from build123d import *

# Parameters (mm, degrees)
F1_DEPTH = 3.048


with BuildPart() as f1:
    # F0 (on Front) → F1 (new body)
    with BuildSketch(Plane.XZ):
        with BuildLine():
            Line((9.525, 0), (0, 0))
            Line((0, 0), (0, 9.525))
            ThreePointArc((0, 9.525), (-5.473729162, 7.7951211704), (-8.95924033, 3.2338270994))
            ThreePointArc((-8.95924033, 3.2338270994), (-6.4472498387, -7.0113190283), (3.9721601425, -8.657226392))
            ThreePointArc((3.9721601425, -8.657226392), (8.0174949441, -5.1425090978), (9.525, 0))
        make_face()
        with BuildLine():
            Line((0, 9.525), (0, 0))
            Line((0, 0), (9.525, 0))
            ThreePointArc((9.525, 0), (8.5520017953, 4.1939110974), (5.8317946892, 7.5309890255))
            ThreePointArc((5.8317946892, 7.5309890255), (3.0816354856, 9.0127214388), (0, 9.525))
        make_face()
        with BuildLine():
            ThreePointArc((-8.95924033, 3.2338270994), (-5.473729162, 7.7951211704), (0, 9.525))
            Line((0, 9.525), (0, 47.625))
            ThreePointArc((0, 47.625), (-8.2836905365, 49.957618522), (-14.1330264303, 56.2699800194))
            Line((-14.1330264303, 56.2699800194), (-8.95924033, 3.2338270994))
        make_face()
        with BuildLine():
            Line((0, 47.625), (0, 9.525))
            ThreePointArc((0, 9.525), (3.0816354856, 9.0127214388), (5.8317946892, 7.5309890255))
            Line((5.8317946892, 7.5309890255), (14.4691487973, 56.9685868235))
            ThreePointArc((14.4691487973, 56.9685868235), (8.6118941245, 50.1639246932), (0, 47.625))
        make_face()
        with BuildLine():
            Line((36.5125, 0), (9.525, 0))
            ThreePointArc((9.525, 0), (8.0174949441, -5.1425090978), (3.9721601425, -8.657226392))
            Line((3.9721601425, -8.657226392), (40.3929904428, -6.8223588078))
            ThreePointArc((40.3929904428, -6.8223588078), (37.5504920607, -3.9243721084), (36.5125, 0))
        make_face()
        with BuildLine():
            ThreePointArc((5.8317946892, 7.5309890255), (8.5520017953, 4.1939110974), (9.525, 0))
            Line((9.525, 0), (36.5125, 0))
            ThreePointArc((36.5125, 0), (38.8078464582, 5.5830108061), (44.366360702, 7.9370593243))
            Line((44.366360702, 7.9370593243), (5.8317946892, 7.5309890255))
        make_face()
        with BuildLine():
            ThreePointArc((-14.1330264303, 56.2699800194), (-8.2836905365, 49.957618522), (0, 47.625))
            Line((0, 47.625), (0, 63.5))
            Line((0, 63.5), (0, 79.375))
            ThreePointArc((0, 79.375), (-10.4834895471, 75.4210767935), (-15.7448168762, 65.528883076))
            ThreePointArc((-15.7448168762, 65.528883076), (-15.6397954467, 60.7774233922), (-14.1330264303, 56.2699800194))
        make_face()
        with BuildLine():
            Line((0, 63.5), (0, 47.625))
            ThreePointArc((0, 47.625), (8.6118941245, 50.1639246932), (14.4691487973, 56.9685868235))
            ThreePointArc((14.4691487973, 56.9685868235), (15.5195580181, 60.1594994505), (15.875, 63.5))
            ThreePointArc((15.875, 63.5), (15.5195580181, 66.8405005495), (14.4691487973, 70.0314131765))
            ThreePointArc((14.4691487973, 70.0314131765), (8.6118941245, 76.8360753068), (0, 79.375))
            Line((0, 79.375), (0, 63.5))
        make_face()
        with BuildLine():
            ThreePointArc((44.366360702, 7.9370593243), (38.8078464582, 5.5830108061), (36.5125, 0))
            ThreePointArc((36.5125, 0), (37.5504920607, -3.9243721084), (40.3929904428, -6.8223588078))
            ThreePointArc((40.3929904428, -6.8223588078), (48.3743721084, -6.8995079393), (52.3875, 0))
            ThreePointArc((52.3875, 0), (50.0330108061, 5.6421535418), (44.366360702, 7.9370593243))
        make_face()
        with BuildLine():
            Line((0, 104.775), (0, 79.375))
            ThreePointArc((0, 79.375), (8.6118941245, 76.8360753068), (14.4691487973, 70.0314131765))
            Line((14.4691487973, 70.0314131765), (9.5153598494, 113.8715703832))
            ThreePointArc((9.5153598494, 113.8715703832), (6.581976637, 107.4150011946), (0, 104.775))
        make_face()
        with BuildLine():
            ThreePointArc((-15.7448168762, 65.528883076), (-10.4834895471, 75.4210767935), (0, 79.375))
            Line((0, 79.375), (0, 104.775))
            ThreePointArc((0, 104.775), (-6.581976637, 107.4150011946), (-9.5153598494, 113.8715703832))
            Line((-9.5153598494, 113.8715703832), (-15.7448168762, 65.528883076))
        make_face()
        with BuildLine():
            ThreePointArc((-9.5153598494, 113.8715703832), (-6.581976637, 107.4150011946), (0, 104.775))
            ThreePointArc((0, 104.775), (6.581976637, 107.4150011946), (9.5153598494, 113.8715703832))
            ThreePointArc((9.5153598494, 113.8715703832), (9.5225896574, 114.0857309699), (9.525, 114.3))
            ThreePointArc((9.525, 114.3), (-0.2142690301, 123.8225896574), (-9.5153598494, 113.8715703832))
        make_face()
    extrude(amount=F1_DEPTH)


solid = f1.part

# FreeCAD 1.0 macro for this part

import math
import FreeCAD as App
import Part
import Sketcher
Q = App.Units.Quantity

doc = App.newDocument("Part")
body = doc.addObject("PartDesign::Body", "Body")

# Sketch on XZ plane
sketch1 = body.newObject("Sketcher::SketchObject", "Sketch")
sketch1.AttachmentSupport = (doc.getObject("XZ_Plane"), [""])
sketch1.MapMode = "FlatFace"
sketch1.addGeometry(Part.ArcOfCircle(Part.Circle(App.Vector(0, 0, 0), App.Vector(0, 0, 1), 9.525), math.radians(160.153013), math.radians(294.646886)), False)
sketch1.addGeometry(Part.LineSegment(App.Vector(3.97216, -8.657226, 0), App.Vector(40.39299, -6.822359, 0)), False)
sketch1.addGeometry(Part.ArcOfCircle(Part.Circle(App.Vector(44.45, 0, 0), App.Vector(0, 0, 1), 7.9375), math.radians(-120.738416), math.radians(0)), False)
sketch1.addGeometry(Part.ArcOfCircle(Part.Circle(App.Vector(44.45, 0, 0), App.Vector(0, 0, 1), 7.9375), math.radians(0), math.radians(90.60375)), False)
sketch1.addGeometry(Part.LineSegment(App.Vector(44.366361, 7.937059, 0), App.Vector(5.831795, 7.530989, 0)), False)
sketch1.addGeometry(Part.LineSegment(App.Vector(5.831795, 7.530989, 0), App.Vector(14.469149, 56.968587, 0)), False)
sketch1.addGeometry(Part.ArcOfCircle(Part.Circle(App.Vector(0, 63.5, 0), App.Vector(0, 0, 1), 15.875), math.radians(-24.294546), math.radians(0)), False)
sketch1.addGeometry(Part.ArcOfCircle(Part.Circle(App.Vector(0, 63.5, 0), App.Vector(0, 0, 1), 15.875), math.radians(0), math.radians(24.294546)), False)
sketch1.addGeometry(Part.LineSegment(App.Vector(14.469149, 70.031413, 0), App.Vector(9.51536, 113.87157, 0)), False)
sketch1.addGeometry(Part.ArcOfCircle(Part.Circle(App.Vector(0, 114.3, 0), App.Vector(0, 0, 1), 9.525), math.radians(-2.578005), math.radians(0)), False)
sketch1.addGeometry(Part.ArcOfCircle(Part.Circle(App.Vector(0, 114.3, 0), App.Vector(0, 0, 1), 9.525), math.radians(0), math.radians(182.578005)), False)
sketch1.addGeometry(Part.LineSegment(App.Vector(-9.51536, 113.87157, 0), App.Vector(-15.744817, 65.528883, 0)), False)
sketch1.addGeometry(Part.ArcOfCircle(Part.Circle(App.Vector(0, 63.5, 0), App.Vector(0, 0, 1), 15.875), math.radians(172.657307), math.radians(207.092883)), False)
sketch1.addGeometry(Part.LineSegment(App.Vector(-14.133026, 56.26998, 0), App.Vector(-8.95924, 3.233827, 0)), False)
sketch1.addConstraint(Sketcher.Constraint("Coincident", 0, 2, 1, 1))
sketch1.addConstraint(Sketcher.Constraint("Coincident", 1, 2, 2, 1))
sketch1.addConstraint(Sketcher.Constraint("Tangent", 2, 2, 3, 1))
sketch1.addConstraint(Sketcher.Constraint("Tangent", 3, 2, 4, 1))
sketch1.addConstraint(Sketcher.Constraint("Coincident", 4, 2, 5, 1))
sketch1.addConstraint(Sketcher.Constraint("Coincident", 5, 2, 6, 1))
sketch1.addConstraint(Sketcher.Constraint("Tangent", 6, 2, 7, 1))
sketch1.addConstraint(Sketcher.Constraint("Coincident", 7, 2, 8, 1))
sketch1.addConstraint(Sketcher.Constraint("Coincident", 8, 2, 9, 1))
sketch1.addConstraint(Sketcher.Constraint("Tangent", 9, 2, 10, 1))
sketch1.addConstraint(Sketcher.Constraint("Coincident", 10, 2, 11, 1))
sketch1.addConstraint(Sketcher.Constraint("Tangent", 11, 2, 12, 1))
sketch1.addConstraint(Sketcher.Constraint("Coincident", 12, 2, 13, 1))
sketch1.addConstraint(Sketcher.Constraint("Coincident", 13, 2, 0, 1))
sketch1.addConstraint(Sketcher.Constraint("Coincident", 0, 3, -1, 1))
sketch1.addConstraint(Sketcher.Constraint("Coincident", 12, 3, 6, 3))
sketch1.addConstraint(Sketcher.Constraint("Equal", 2, 3))
sketch1.addConstraint(Sketcher.Constraint("Equal", 6, 7))
sketch1.addConstraint(Sketcher.Constraint("Equal", 0, 9))
sketch1.addConstraint(Sketcher.Constraint("Equal", 9, 10))
sketch1.addConstraint(Sketcher.Constraint("Equal", 7, 12))
sketch1.addConstraint(Sketcher.Constraint("Symmetric", 8, 2, 10, 2, -2))
sketch1.addConstraint(Sketcher.Constraint("PointOnObject", 2, 3, -1))
sketch1.addConstraint(Sketcher.Constraint("PointOnObject", 6, 3, -2))
sketch1.addConstraint(Sketcher.Constraint("PointOnObject", 2, 2, -1))
sketch1.addConstraint(Sketcher.Constraint("Horizontal", 12, 3, 6, 2))
sketch1.addConstraint(Sketcher.Constraint("Horizontal", 10, 3, 9, 2))
sketch1.addConstraint(Sketcher.Constraint("Vertical", 5, 2, 7, 2))
sketch1.addConstraint(Sketcher.Constraint("Radius", 0, Q("0.375 in")))
sketch1.addConstraint(Sketcher.Constraint("Radius", 2, Q("0.3125 in")))
sketch1.addConstraint(Sketcher.Constraint("Radius", 6, Q("0.625 in")))
sketch1.addConstraint(Sketcher.Constraint("DistanceY", 6, 3, 9, 3, Q("2 in")))
sketch1.addConstraint(Sketcher.Constraint("DistanceY", -1, 1, 6, 3, Q("2.5 in")))
sketch1.addConstraint(Sketcher.Constraint("DistanceX", -1, 1, 2, 3, Q("1.75 in")))
sketch1.addConstraint(Sketcher.Constraint("Distance", 11, Q("48.7424 mm")))
sketch1.addConstraint(Sketcher.Constraint("DistanceX", 0, 2, 3, 2, Q("40.394201 mm")))
sketch1.addConstraint(Sketcher.Constraint("DistanceX", 13, 2, 0, 2, Q("12.9314 mm")))
sketch1.addConstraint(Sketcher.Constraint("Distance", 1, Q("36.467021 mm")))
sketch1.addConstraint(Sketcher.Constraint("Distance", 5, Q("50.186452 mm")))
sketch1.addConstraint(Sketcher.Constraint("Distance", 8, Q("44.11915 mm")))
sketch1.addConstraint(Sketcher.Constraint("DistanceX", -1, 1, 0, 2, Q("3.97216 mm")))
sketch1.addConstraint(Sketcher.Constraint("DistanceY", -1, 1, 12, 2, Q("56.26998 mm")))
pad1 = body.newObject("PartDesign::Pad", "Pad")
pad1.Profile = sketch1
pad1.Length = Q("0.12 in")

doc.recompute()
